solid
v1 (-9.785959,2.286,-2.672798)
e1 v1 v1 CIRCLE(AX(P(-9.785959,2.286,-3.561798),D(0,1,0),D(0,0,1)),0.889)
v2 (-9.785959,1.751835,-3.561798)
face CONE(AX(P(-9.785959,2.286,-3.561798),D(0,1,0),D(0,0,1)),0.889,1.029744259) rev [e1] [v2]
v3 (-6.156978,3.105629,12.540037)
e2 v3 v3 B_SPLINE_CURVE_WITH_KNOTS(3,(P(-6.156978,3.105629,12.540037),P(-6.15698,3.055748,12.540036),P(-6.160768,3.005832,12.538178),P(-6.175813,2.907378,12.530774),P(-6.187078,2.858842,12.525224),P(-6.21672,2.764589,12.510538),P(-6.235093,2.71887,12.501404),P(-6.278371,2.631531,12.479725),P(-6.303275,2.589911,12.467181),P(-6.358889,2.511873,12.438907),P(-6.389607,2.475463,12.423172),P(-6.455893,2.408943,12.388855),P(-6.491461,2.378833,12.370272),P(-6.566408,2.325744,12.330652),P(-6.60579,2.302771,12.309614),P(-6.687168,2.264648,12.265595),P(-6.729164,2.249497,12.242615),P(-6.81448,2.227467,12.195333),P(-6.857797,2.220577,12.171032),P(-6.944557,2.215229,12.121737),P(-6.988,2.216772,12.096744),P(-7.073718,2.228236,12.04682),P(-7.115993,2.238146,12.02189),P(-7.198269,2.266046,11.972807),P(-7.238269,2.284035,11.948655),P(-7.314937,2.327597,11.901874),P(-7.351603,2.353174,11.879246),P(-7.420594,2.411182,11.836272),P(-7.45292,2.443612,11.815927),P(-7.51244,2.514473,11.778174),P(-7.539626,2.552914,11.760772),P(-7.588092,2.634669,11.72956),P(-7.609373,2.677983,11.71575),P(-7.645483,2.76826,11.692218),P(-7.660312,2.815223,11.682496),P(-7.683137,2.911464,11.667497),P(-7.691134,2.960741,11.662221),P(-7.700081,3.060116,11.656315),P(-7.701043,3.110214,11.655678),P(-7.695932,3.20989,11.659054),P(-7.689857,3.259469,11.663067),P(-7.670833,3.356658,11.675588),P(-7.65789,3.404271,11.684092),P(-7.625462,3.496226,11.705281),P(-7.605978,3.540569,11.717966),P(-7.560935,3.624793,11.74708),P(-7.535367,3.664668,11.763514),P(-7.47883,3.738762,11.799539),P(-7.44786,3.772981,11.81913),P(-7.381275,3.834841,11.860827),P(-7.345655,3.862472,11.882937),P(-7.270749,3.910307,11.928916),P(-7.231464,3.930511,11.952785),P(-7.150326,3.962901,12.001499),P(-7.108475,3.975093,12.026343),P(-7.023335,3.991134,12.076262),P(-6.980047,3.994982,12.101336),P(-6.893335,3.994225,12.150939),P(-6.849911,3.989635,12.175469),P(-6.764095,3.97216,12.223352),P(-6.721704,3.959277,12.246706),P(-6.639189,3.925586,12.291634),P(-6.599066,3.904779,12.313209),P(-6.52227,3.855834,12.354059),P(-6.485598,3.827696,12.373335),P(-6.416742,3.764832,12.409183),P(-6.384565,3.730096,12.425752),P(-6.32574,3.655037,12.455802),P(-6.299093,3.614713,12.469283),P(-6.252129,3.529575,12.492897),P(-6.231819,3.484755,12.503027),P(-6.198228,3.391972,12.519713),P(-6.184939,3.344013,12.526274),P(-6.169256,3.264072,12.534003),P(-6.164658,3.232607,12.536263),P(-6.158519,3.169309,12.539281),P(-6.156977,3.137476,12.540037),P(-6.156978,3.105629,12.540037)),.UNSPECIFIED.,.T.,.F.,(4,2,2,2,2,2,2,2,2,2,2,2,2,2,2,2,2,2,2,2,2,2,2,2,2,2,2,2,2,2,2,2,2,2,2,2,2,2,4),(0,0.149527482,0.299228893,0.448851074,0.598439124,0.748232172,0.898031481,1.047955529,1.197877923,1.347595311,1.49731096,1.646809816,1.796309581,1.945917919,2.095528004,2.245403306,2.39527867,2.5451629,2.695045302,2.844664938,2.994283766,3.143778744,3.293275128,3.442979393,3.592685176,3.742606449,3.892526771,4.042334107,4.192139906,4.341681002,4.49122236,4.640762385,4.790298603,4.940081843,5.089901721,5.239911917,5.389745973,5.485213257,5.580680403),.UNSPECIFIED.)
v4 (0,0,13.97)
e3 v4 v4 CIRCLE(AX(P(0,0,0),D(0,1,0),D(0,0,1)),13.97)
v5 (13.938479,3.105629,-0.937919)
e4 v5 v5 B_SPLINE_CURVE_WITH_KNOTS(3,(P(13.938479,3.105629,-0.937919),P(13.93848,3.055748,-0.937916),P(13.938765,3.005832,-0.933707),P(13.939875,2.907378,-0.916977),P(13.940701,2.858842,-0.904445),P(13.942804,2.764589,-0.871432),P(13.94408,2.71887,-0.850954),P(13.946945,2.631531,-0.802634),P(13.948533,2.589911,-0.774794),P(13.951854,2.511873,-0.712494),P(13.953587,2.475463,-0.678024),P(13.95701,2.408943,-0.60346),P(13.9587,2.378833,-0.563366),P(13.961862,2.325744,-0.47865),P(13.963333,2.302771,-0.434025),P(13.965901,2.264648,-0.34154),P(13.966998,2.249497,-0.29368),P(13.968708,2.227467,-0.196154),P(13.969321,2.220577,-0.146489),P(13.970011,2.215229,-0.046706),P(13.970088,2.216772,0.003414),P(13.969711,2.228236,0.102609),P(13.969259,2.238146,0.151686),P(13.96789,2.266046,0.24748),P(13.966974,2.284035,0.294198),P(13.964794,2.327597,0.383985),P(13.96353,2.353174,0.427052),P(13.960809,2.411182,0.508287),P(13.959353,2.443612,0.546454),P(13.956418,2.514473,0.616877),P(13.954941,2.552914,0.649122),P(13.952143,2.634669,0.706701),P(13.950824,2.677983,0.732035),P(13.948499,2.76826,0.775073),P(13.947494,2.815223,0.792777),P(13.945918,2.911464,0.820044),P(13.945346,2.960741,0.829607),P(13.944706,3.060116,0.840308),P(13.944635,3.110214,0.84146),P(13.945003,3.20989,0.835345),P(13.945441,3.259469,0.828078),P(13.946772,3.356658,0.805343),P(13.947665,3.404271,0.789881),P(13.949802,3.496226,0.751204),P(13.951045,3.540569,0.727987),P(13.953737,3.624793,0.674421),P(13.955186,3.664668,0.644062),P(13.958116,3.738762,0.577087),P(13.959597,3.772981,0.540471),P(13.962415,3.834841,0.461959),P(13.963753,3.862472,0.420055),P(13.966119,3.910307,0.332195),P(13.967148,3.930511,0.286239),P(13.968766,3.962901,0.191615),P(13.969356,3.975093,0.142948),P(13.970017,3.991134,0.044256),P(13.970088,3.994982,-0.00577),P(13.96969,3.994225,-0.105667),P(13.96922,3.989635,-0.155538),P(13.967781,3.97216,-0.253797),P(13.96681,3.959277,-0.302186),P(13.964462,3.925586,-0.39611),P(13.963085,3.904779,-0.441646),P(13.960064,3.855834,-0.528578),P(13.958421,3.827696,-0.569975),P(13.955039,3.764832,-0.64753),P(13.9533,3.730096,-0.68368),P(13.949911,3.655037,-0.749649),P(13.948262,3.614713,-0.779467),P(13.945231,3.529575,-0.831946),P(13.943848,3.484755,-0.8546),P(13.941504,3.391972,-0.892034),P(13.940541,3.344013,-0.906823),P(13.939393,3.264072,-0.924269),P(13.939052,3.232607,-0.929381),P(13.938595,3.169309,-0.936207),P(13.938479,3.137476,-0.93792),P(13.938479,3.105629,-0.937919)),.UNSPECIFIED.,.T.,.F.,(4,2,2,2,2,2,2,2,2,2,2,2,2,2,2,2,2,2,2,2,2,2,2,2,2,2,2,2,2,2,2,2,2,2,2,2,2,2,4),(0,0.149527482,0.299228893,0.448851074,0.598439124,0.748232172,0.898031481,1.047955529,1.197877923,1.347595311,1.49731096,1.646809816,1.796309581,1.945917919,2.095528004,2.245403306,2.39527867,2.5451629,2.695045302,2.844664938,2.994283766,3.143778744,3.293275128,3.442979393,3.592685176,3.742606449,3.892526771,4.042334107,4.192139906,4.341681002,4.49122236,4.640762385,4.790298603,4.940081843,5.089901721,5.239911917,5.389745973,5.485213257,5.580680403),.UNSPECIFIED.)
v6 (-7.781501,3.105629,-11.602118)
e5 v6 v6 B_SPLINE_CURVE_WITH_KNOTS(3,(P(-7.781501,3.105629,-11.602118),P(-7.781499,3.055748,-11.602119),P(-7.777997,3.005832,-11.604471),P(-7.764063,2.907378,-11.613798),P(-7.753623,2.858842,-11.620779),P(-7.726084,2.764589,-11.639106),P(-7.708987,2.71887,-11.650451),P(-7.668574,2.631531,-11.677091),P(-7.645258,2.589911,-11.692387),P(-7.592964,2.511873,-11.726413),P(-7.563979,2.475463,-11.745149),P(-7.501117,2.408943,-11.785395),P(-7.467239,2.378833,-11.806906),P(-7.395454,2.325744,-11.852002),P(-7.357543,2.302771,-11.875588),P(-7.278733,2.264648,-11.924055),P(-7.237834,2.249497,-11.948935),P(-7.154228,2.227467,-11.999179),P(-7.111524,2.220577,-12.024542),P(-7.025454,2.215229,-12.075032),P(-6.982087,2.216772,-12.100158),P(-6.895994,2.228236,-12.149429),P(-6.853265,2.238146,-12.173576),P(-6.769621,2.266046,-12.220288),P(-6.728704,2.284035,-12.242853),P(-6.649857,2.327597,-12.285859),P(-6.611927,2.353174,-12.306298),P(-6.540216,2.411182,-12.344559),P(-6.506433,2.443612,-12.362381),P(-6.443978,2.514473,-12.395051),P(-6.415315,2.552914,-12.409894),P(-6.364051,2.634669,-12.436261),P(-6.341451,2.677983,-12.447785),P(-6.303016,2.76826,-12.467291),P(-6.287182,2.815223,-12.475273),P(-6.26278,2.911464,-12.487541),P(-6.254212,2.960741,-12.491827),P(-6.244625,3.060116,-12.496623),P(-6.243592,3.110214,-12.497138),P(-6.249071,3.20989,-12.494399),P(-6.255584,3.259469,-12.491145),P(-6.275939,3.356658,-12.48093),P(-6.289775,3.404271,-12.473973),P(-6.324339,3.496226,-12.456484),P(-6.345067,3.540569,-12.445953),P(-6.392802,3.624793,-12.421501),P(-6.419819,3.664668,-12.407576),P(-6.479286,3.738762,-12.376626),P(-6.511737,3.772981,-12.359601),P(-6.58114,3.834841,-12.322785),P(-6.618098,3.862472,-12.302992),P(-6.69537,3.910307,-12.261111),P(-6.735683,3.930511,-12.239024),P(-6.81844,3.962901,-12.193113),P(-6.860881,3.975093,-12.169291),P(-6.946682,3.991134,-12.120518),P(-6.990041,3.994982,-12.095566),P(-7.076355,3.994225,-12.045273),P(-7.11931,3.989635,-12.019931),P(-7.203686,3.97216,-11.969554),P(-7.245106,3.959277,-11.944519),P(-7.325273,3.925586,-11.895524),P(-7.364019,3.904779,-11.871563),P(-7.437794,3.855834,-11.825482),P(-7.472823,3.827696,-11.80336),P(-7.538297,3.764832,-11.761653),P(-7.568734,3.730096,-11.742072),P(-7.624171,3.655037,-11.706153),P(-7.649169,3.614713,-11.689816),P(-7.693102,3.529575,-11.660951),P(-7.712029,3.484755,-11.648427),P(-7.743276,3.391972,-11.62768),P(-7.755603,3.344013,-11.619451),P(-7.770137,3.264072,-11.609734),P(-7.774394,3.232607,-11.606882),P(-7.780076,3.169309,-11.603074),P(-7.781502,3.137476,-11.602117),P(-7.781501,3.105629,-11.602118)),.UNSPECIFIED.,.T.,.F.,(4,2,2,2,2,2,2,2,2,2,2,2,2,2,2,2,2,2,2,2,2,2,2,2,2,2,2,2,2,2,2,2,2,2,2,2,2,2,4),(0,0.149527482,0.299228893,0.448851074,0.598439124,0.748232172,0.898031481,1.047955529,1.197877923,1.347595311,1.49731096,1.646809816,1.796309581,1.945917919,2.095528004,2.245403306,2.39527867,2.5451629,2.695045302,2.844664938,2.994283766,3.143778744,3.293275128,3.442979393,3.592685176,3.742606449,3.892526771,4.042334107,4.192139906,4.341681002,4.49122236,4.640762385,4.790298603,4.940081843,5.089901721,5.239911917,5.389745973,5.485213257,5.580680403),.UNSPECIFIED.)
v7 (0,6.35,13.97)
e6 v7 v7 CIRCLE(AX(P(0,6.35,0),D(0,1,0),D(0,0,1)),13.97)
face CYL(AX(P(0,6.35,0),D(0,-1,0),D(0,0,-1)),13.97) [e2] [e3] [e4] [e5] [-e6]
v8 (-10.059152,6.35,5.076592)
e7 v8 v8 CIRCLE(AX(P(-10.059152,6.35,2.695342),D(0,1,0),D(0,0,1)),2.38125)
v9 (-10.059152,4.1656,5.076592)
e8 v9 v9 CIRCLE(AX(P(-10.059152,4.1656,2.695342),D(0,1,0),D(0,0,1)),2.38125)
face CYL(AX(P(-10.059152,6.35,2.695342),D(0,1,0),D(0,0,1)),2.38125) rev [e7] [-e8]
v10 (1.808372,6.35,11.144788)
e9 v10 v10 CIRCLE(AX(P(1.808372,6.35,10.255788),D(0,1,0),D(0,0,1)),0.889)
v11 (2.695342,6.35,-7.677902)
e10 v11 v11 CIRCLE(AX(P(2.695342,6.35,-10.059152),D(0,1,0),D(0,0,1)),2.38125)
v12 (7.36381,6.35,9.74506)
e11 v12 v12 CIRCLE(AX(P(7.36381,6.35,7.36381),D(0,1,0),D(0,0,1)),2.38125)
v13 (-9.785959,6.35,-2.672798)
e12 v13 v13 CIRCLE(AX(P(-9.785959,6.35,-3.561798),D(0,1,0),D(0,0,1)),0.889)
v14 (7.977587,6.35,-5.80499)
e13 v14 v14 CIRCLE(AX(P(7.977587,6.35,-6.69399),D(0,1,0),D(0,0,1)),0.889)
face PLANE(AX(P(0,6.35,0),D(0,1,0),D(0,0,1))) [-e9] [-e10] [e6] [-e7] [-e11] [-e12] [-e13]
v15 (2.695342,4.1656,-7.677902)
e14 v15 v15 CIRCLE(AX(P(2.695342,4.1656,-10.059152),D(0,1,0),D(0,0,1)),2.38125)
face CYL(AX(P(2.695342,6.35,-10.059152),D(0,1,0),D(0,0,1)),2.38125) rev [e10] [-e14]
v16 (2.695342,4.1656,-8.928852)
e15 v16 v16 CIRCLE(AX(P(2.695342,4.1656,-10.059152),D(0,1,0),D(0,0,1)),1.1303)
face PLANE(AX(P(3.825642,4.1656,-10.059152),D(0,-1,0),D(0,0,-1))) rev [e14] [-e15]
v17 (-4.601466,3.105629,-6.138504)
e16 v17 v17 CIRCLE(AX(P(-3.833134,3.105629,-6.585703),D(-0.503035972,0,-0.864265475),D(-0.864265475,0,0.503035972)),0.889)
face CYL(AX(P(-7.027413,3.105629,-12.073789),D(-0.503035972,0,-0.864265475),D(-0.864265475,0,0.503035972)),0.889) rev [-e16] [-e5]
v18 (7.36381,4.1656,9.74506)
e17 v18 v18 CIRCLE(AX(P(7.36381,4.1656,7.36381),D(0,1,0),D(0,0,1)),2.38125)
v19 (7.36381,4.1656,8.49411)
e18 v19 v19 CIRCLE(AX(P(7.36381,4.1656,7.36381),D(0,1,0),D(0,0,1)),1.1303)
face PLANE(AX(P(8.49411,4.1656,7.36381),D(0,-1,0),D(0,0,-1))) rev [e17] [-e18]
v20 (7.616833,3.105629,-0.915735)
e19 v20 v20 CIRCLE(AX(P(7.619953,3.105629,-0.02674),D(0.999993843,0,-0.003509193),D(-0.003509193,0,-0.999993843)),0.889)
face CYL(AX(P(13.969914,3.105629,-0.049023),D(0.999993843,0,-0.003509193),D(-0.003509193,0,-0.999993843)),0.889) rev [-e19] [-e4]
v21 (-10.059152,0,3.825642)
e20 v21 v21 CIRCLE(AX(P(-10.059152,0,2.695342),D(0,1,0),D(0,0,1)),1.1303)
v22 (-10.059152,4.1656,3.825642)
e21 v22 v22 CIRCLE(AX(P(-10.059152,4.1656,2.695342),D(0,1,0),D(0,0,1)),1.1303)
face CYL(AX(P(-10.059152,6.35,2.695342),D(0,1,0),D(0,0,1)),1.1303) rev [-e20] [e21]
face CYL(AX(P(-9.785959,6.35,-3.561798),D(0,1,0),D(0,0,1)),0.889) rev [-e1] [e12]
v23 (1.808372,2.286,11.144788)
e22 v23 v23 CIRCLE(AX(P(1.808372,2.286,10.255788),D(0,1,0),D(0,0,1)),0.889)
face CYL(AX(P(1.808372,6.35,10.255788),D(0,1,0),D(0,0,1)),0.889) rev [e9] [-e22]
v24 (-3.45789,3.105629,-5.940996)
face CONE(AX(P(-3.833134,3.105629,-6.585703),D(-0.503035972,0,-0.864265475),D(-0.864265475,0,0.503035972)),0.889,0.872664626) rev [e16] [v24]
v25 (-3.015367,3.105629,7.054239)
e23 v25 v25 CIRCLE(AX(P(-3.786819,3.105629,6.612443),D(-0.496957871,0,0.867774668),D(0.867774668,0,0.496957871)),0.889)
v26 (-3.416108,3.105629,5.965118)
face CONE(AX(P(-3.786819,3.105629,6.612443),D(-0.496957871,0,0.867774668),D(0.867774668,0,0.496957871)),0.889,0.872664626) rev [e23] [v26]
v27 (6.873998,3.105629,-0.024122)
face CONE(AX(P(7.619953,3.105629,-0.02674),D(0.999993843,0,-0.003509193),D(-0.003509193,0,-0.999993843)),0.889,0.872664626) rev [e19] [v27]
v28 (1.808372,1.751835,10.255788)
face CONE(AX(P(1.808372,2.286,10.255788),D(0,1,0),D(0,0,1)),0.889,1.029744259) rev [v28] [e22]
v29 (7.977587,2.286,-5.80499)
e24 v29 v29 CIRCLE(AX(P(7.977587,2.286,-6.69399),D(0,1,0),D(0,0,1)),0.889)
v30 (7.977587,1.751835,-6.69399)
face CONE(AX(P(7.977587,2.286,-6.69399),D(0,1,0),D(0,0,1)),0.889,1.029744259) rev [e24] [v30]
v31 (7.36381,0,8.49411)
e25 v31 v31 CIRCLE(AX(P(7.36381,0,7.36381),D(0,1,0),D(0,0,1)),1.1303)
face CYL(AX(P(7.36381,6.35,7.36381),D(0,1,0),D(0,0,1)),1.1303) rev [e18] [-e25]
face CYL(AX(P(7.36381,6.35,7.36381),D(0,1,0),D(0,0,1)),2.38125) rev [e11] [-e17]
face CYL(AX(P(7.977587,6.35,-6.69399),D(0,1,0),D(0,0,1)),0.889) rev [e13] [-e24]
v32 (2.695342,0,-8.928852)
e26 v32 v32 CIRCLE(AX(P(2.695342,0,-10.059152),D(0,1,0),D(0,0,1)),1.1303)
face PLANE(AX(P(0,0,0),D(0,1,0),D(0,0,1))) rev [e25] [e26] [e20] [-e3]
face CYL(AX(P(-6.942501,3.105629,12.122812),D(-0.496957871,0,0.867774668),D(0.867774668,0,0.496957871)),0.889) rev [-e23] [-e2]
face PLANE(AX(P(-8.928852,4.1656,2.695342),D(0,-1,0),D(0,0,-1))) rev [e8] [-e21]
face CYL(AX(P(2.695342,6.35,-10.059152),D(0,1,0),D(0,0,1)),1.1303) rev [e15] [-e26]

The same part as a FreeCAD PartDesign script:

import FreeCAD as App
import Part
import Sketcher
Q = App.Units.Quantity

doc = App.newDocument("Part")
params = doc.addObject("Spreadsheet::Sheet", "Params")
for row, (alias, value) in enumerate([
    ("sketch1_diameter", "1.1 in"),
    ("pad1_length", "0.25 in"),
    ("sketch2_diameter", "0.089 in"),
    ("hole_diameter", "0.089 in"),
    ("hole_cbore_diameter", "0.1875 in"),
    ("hole_cbore_depth", "0.086 in"),
    ("sketch3_width", "0.16 in"),
    ("sketch3_height", "0.035 in"),
    ("groove_angle", "360 deg"),
    ("sketch4_length", "0.25 in"),
    ("sketch4_length2", "0.035 in"),
    ("groove2_angle", "360 deg"),
], start=1):
    params.set(f"A{row}", alias)
    params.set(f"B{row}", "=" + value)
    params.setAlias(f"B{row}", alias)

body = doc.addObject("PartDesign::Body", "Body")

# Sketch on XZ plane
sketch1 = body.newObject("Sketcher::SketchObject", "Sketch")
sketch1.AttachmentSupport = (doc.getObject("XZ_Plane"), [""])
sketch1.MapMode = "FlatFace"
sketch1.addGeometry(Part.Circle(App.Vector(0, 0, 0), App.Vector(0, 0, 1), 14), False)
sketch1.addConstraint([
    Sketcher.Constraint("Coincident", 0, 3, -1, 1),
    Sketcher.Constraint("Diameter", 0, Q("1.1 in")),
])
sketch1.setExpression("Constraints[1]", "Params.sketch1_diameter")
pad1 = body.newObject("PartDesign::Pad", "Pad")
pad1.Profile = sketch1
pad1.setExpression("Length", "Params.pad1_length")
pad1.Reversed = True

# Sketch on XZ plane
sketch2 = body.newObject("Sketcher::SketchObject", "Sketch001")
sketch2.AttachmentSupport = (doc.getObject("XZ_Plane"), [""])
sketch2.MapMode = "FlatFace"
sketch2.AttachmentOffset = App.Placement(App.Vector(0, 0, -0.25 * 25.4), App.Rotation())
sketch2.addGeometry(Part.Circle(App.Vector(7.4, 7.4, 0), App.Vector(0, 0, 1), 1.1), False)
sketch2.addConstraint([
    Sketcher.Constraint("Diameter", 0, Q("0.089 in")),
    Sketcher.Constraint("DistanceX", -1, 1, 0, 3, Q("7.36381 mm")),
    Sketcher.Constraint("DistanceY", -1, 1, 0, 3, Q("7.36381 mm")),
])
sketch2.setExpression("Constraints[0]", "Params.sketch2_diameter")
doc.recompute()
hole = body.newObject("PartDesign::Hole", "Hole")
hole.Profile = sketch2
hole.ThreadType = "None"
hole.setExpression("Diameter", "Params.hole_diameter")
hole.DepthType = "ThroughAll"
hole.HoleCutType = "Counterbore"
hole.setExpression("HoleCutDiameter", "Params.hole_cbore_diameter")
hole.setExpression("HoleCutDepth", "Params.hole_cbore_depth")
hole.Reversed = True
doc.recompute()

polarpattern = body.newObject("PartDesign::PolarPattern", "PolarPattern")
polarpattern.Originals = [hole]
polarpattern.Axis = (doc.getObject("Y_Axis"), [""])
polarpattern.Angle = 360
polarpattern.Occurrences = 3
body.Tip = polarpattern

# Sketch on YZ plane
sketch3 = body.newObject("Sketcher::SketchObject", "Sketch002")
sketch3.AttachmentSupport = (doc.getObject("YZ_Plane"), [""])
sketch3.MapMode = "FlatFace"
sketch3.AttachmentOffset = App.Placement(App.Vector(0, 0, 7.977587), App.Rotation())
sketch3.addGeometry([
    Part.LineSegment(App.Vector(1.8, -6.7, 0), App.Vector(6.3, -6.7, 0)),
    Part.LineSegment(App.Vector(6.3, -6.7, 0), App.Vector(6.3, -5.8, 0)),
    Part.LineSegment(App.Vector(6.3, -5.8, 0), App.Vector(2.3, -5.8, 0)),
    Part.LineSegment(App.Vector(2.3, -5.8, 0), App.Vector(1.8, -6.7, 0)),
], False)
sketch3.addGeometry(Part.LineSegment(App.Vector(6.3, -6.7, 0), App.Vector(1.8, -6.7, 0)), True)  # axis
sketch3.addConstraint([
    Sketcher.Constraint("Coincident", 0, 2, 1, 1),
    Sketcher.Constraint("Coincident", 1, 2, 2, 1),
    Sketcher.Constraint("Coincident", 2, 2, 3, 1),
    Sketcher.Constraint("Coincident", 3, 2, 0, 1),
    Sketcher.Constraint("Horizontal", 0),
    Sketcher.Constraint("Vertical", 1),
    Sketcher.Constraint("Horizontal", 2),
    Sketcher.Constraint("Horizontal", 4),
    Sketcher.Constraint("Coincident", 4, 1, 0, 2),
    Sketcher.Constraint("Equal", 0, 4),
    Sketcher.Constraint("Angle", 3, Q("-121 deg")),
    Sketcher.Constraint("DistanceX", 2, 2, 2, 1, Q("0.16 in")),
    Sketcher.Constraint("DistanceY", 1, 1, 1, 2, Q("0.035 in")),
    Sketcher.Constraint("DistanceX", -1, 1, 0, 2, Q("0.25 in")),
    Sketcher.Constraint("DistanceY", 0, 2, -1, 1, Q("6.69399 mm")),
])
sketch3.setExpression("Constraints[11]", "Params.sketch3_width")
sketch3.setExpression("Constraints[12]", "Params.sketch3_height")
groove = body.newObject("PartDesign::Groove", "Groove")
groove.Profile = sketch3
groove.ReferenceAxis = (sketch3, ["Axis0"])
groove.setExpression("Angle", "Params.groove_angle")
doc.recompute()

polarpattern2 = body.newObject("PartDesign::PolarPattern", "PolarPattern001")
polarpattern2.Originals = [groove]
polarpattern2.Axis = (doc.getObject("Y_Axis"), [""])
polarpattern2.Angle = 360
polarpattern2.Occurrences = 3
body.Tip = polarpattern2

# Sketch on XZ plane
sketch4 = body.newObject("Sketcher::SketchObject", "Sketch003")
sketch4.AttachmentSupport = (doc.getObject("XZ_Plane"), [""])
sketch4.MapMode = "FlatFace"
sketch4.AttachmentOffset = App.Placement(App.Vector(0, 0, -3.105629), App.Rotation())
sketch4.addGeometry([
    Part.LineSegment(App.Vector(-3.4, 6, 0), App.Vector(-6.9, 12.1, 0)),
    Part.LineSegment(App.Vector(-6.9, 12.1, 0), App.Vector(-6.2, 12.6, 0)),
    Part.LineSegment(App.Vector(-6.2, 12.6, 0), App.Vector(-3, 7.1, 0)),
    Part.LineSegment(App.Vector(-3, 7.1, 0), App.Vector(-3.4, 6, 0)),
], False)
sketch4.addGeometry(Part.LineSegment(App.Vector(-6.9, 12.1, 0), App.Vector(-3.4, 6, 0)), True)  # axis
sketch4.addConstraint([
    Sketcher.Constraint("Coincident", 0, 2, 1, 1),
    Sketcher.Constraint("Coincident", 1, 2, 2, 1),
    Sketcher.Constraint("Coincident", 2, 2, 3, 1),
    Sketcher.Constraint("Coincident", 3, 2, 0, 1),
    Sketcher.Constraint("Coincident", 4, 1, 0, 2),
    Sketcher.Constraint("Coincident", 4, 2, 3, 2),
    Sketcher.Constraint("Perpendicular", 0, 1),
    Sketcher.Constraint("Perpendicular", 1, 2),
    Sketcher.Constraint("Distance", 2, Q("0.25 in")),
    Sketcher.Constraint("Distance", 1, Q("0.035 in")),
    Sketcher.Constraint("DistanceX", 0, 2, -1, 1, Q("6.942501 mm")),
    Sketcher.Constraint("Distance", 0, Q("7.09596 mm")),
    Sketcher.Constraint("DistanceX", 1, 2, -1, 1, Q("6.17105 mm")),
    Sketcher.Constraint("DistanceY", -1, 1, 2, 2, Q("7.054239 mm")),
])
sketch4.setExpression("Constraints[8]", "Params.sketch4_length")
sketch4.setExpression("Constraints[9]", "Params.sketch4_length2")
groove2 = body.newObject("PartDesign::Groove", "Groove001")
groove2.Profile = sketch4
groove2.ReferenceAxis = (sketch4, ["Axis0"])
groove2.setExpression("Angle", "Params.groove2_angle")
doc.recompute()

polarpattern3 = body.newObject("PartDesign::PolarPattern", "PolarPattern002")
polarpattern3.Originals = [groove2]
polarpattern3.Axis = (doc.getObject("Y_Axis"), [""])
polarpattern3.Angle = 360
polarpattern3.Occurrences = 3
body.Tip = polarpattern3

doc.recompute()
